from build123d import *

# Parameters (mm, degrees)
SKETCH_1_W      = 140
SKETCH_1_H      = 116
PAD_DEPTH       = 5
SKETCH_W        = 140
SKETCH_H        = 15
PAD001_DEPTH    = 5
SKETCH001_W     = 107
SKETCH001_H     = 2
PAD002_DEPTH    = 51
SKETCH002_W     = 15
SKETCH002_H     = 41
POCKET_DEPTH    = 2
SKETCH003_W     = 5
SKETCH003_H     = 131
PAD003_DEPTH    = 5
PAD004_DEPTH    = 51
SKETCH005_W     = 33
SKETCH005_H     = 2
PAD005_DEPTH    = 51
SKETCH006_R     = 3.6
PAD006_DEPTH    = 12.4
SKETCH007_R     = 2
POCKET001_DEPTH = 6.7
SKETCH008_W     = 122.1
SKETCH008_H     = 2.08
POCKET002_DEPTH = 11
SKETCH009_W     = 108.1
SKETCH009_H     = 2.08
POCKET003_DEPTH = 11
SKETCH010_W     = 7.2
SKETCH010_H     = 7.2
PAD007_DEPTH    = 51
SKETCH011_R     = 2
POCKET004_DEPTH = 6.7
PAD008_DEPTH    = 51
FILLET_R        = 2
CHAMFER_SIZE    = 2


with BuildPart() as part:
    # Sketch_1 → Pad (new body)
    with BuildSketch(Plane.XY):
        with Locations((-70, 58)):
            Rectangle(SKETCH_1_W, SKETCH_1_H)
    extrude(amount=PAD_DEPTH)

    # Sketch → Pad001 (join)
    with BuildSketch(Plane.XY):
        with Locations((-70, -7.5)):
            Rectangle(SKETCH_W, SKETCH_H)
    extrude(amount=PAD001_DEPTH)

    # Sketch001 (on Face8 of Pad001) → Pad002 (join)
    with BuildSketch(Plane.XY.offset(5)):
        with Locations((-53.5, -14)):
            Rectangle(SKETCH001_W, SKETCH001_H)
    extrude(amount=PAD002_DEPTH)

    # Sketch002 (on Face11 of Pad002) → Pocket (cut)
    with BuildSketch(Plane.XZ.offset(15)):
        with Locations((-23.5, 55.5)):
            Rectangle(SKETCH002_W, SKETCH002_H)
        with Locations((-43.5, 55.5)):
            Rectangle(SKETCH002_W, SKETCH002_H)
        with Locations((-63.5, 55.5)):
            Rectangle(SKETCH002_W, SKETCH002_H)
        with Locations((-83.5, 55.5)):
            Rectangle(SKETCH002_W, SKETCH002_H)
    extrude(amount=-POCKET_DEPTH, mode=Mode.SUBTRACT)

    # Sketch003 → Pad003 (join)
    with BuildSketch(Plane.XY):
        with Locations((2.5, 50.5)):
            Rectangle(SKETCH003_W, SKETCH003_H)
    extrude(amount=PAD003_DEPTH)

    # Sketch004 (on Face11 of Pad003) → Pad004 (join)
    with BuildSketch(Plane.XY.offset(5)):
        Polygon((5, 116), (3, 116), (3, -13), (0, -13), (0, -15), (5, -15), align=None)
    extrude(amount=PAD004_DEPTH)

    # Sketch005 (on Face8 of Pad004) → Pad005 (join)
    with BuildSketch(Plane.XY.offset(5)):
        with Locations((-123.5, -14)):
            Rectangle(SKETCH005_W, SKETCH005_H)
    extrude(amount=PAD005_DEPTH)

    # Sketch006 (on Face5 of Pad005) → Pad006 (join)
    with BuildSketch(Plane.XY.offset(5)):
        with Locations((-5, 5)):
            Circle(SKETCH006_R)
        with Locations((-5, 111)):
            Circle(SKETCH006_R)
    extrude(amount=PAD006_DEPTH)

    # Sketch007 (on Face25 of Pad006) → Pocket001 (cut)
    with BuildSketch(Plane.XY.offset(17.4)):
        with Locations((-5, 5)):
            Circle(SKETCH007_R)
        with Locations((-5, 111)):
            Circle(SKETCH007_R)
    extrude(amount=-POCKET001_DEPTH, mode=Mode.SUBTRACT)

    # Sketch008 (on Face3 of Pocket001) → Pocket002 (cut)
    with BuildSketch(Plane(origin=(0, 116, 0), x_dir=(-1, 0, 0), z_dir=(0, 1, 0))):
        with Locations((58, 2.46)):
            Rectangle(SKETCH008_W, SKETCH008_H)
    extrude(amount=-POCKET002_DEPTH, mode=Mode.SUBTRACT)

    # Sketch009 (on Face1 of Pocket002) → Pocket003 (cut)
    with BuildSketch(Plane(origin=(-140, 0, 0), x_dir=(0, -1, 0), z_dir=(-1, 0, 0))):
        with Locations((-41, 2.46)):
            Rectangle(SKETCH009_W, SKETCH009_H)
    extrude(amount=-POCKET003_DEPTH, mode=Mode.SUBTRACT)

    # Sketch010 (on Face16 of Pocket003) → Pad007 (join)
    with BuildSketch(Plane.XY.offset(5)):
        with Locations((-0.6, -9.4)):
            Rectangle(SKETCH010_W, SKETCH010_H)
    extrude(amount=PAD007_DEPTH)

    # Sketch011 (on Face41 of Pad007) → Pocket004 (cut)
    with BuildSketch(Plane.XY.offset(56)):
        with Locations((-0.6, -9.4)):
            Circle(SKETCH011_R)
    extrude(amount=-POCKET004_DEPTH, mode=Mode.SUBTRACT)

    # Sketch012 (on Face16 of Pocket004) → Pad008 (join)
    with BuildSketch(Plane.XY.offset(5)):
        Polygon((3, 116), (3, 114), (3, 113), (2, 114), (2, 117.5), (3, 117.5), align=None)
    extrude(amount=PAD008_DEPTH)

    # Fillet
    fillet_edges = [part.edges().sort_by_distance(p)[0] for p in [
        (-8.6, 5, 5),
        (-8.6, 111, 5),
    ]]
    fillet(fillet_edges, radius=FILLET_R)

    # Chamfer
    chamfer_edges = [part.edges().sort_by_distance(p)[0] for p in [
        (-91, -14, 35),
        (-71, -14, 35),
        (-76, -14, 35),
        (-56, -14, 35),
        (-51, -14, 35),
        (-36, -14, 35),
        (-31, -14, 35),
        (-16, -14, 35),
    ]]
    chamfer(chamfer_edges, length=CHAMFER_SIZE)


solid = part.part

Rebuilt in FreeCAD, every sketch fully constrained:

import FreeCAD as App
import Part
import Sketcher
Q = App.Units.Quantity


def edges_at(feature, points):
    """Names of the edges that pass closest to the given points."""
    edges = feature.Shape.Edges
    near = lambda p: min(range(len(edges)), key=lambda i: edges[i].distToShape(Part.Vertex(*p))[0])
    return sorted({f"Edge{near(p) + 1}" for p in points})


def add_polygon(sketch, points):
    """Adds a closed chain of lines whose ends are joined by coincident constraints."""
    first, n = sketch.GeometryCount, len(points)
    for a, b in zip(points, points[1:] + points[:1]):
        sketch.addGeometry(Part.LineSegment(App.Vector(*a, 0), App.Vector(*b, 0)), False)
    for i in range(n):
        sketch.addConstraint(Sketcher.Constraint("Coincident", first + i, 2, first + (i + 1) % n, 1))

doc = App.newDocument("Part")
body = doc.addObject("PartDesign::Body", "Body")

sketch1 = body.newObject("Sketcher::SketchObject", "Sketch")
sketch1.AttachmentSupport = (doc.getObject("XY_Plane"), [""])
sketch1.MapMode = "FlatFace"
add_polygon(sketch1, [(-140, 116), (-140, 0), (0, 0), (0, 116)])
sketch1.addConstraint([
    Sketcher.Constraint("Vertical", 0),
    Sketcher.Constraint("Horizontal", 1),
    Sketcher.Constraint("Vertical", 2),
    Sketcher.Constraint("Horizontal", 3),
    Sketcher.Constraint("Coincident", 1, 2, -1, 1),
    Sketcher.Constraint("DistanceX", 1, 1, 1, 2, Q("140 mm")),
    Sketcher.Constraint("DistanceY", 0, 2, 0, 1, Q("116 mm")),
])
pad1 = body.newObject("PartDesign::Pad", "Pad")
pad1.Profile = sketch1
pad1.Length = 5

sketch2 = body.newObject("Sketcher::SketchObject", "Sketch001")
sketch2.AttachmentSupport = (doc.getObject("XY_Plane"), [""])
sketch2.MapMode = "FlatFace"
add_polygon(sketch2, [(-140, 0), (-140, -15), (0, -15), (0, 0)])
sketch2.addConstraint([
    Sketcher.Constraint("Vertical", 0),
    Sketcher.Constraint("Horizontal", 1),
    Sketcher.Constraint("Vertical", 2),
    Sketcher.Constraint("Horizontal", 3),
    Sketcher.Constraint("Coincident", 2, 2, -1, 1),
    Sketcher.Constraint("DistanceX", 1, 1, 1, 2, Q("140 mm")),
    Sketcher.Constraint("DistanceY", 0, 2, 0, 1, Q("15 mm")),
])
pad2 = body.newObject("PartDesign::Pad", "Pad001")
pad2.Profile = sketch2
pad2.Length = 5

sketch3 = body.newObject("Sketcher::SketchObject", "Sketch002")
sketch3.AttachmentSupport = (doc.getObject("XY_Plane"), [""])
sketch3.MapMode = "FlatFace"
sketch3.AttachmentOffset = App.Placement(App.Vector(0, 0, 5), App.Rotation())
add_polygon(sketch3, [(-107, -13), (-107, -15), (0, -15), (0, -13)])
sketch3.addConstraint([
    Sketcher.Constraint("Vertical", 0),
    Sketcher.Constraint("Horizontal", 1),
    Sketcher.Constraint("Vertical", 2),
    Sketcher.Constraint("Horizontal", 3),
    Sketcher.Constraint("PointOnObject", 1, 2, -2),
    Sketcher.Constraint("DistanceX", 1, 1, 1, 2, Q("107 mm")),
    Sketcher.Constraint("DistanceY", 0, 2, 0, 1, Q("2 mm")),
    Sketcher.Constraint("DistanceY", 0, 2, -1, 1, Q("15 mm")),
])
pad3 = body.newObject("PartDesign::Pad", "Pad002")
pad3.Profile = sketch3
pad3.Length = 51

sketch4 = body.newObject("Sketcher::SketchObject", "Sketch003")
sketch4.AttachmentSupport = (doc.getObject("XZ_Plane"), [""])
sketch4.MapMode = "FlatFace"
sketch4.AttachmentOffset = App.Placement(App.Vector(0, 0, 15), App.Rotation())
add_polygon(sketch4, [(-31, 76), (-31, 35), (-16, 35), (-16, 76)])
add_polygon(sketch4, [(-51, 76), (-51, 35), (-36, 35), (-36, 76)])
add_polygon(sketch4, [(-71, 76), (-71, 35), (-56, 35), (-56, 76)])
add_polygon(sketch4, [(-91, 76), (-91, 35), (-76, 35), (-76, 76)])
sketch4.addConstraint([
    Sketcher.Constraint("Vertical", 0),
    Sketcher.Constraint("Horizontal", 1),
    Sketcher.Constraint("Vertical", 2),
    Sketcher.Constraint("Horizontal", 3),
    Sketcher.Constraint("Vertical", 4),
    Sketcher.Constraint("Horizontal", 5),
    Sketcher.Constraint("Vertical", 6),
    Sketcher.Constraint("Horizontal", 7),
    Sketcher.Constraint("Vertical", 8),
    Sketcher.Constraint("Horizontal", 9),
    Sketcher.Constraint("Vertical", 10),
    Sketcher.Constraint("Horizontal", 11),
    Sketcher.Constraint("Vertical", 12),
    Sketcher.Constraint("Horizontal", 13),
    Sketcher.Constraint("Vertical", 14),
    Sketcher.Constraint("Horizontal", 15),
    Sketcher.Constraint("Horizontal", 1, 2, 4, 2),
    Sketcher.Constraint("Horizontal", 3, 2, 6, 2),
    Sketcher.Constraint("Horizontal", 5, 2, 8, 2),
    Sketcher.Constraint("Horizontal", 7, 2, 10, 2),
    Sketcher.Constraint("Horizontal", 9, 2, 12, 2),
    Sketcher.Constraint("Horizontal", 11, 2, 14, 2),
    Sketcher.Constraint("Equal", 3, 5),
    Sketcher.Constraint("Equal", 7, 9),
    Sketcher.Constraint("Equal", 11, 13),
    Sketcher.Constraint("DistanceX", 1, 1, 1, 2, Q("15 mm")),
    Sketcher.Constraint("DistanceY", 0, 2, 0, 1, Q("41 mm")),
    Sketcher.Constraint("DistanceX", 0, 2, -1, 1, Q("31 mm")),
    Sketcher.Constraint("DistanceY", -1, 1, 0, 2, Q("35 mm")),
    Sketcher.Constraint("DistanceX", 4, 2, -1, 1, Q("51 mm")),
    Sketcher.Constraint("DistanceX", 8, 2, -1, 1, Q("71 mm")),
    Sketcher.Constraint("DistanceX", 12, 2, -1, 1, Q("91 mm")),
])
pocket1 = body.newObject("PartDesign::Pocket", "Pocket")
pocket1.Profile = sketch4
pocket1.Length = 2

sketch5 = body.newObject("Sketcher::SketchObject", "Sketch004")
sketch5.AttachmentSupport = (doc.getObject("XY_Plane"), [""])
sketch5.MapMode = "FlatFace"
add_polygon(sketch5, [(0, 116), (0, -15), (5, -15), (5, 116)])
sketch5.addConstraint([
    Sketcher.Constraint("Vertical", 0),
    Sketcher.Constraint("Horizontal", 1),
    Sketcher.Constraint("Vertical", 2),
    Sketcher.Constraint("Horizontal", 3),
    Sketcher.Constraint("PointOnObject", 0, 2, -2),
    Sketcher.Constraint("DistanceX", 1, 1, 1, 2, Q("5 mm")),
    Sketcher.Constraint("DistanceY", 0, 2, 0, 1, Q("131 mm")),
    Sketcher.Constraint("DistanceY", 0, 2, -1, 1, Q("15 mm")),
])
pad4 = body.newObject("PartDesign::Pad", "Pad003")
pad4.Profile = sketch5
pad4.Length = 5

sketch6 = body.newObject("Sketcher::SketchObject", "Sketch005")
sketch6.AttachmentSupport = (doc.getObject("XY_Plane"), [""])
sketch6.MapMode = "FlatFace"
sketch6.AttachmentOffset = App.Placement(App.Vector(0, 0, 5), App.Rotation())
add_polygon(sketch6, [(5, 116), (3, 116), (3, -13), (0, -13), (0, -15), (5, -15)])
sketch6.addConstraint([
    Sketcher.Constraint("Horizontal", 0),
    Sketcher.Constraint("Vertical", 1),
    Sketcher.Constraint("Horizontal", 2),
    Sketcher.Constraint("Vertical", 3),
    Sketcher.Constraint("Horizontal", 4),
    Sketcher.Constraint("Vertical", 5),
    Sketcher.Constraint("PointOnObject", 2, 2, -2),
    Sketcher.Constraint("Equal", 0, 3),
    Sketcher.Constraint("DistanceX", 0, 2, 0, 1, Q("2 mm")),
    Sketcher.Constraint("DistanceX", 2, 2, 2, 1, Q("3 mm")),
    Sketcher.Constraint("DistanceY", 1, 2, 1, 1, Q("129 mm")),
    Sketcher.Constraint("DistanceY", -1, 1, 0, 2, Q("116 mm")),
])
pad5 = body.newObject("PartDesign::Pad", "Pad004")
pad5.Profile = sketch6
pad5.Length = 51

sketch7 = body.newObject("Sketcher::SketchObject", "Sketch006")
sketch7.AttachmentSupport = (doc.getObject("XY_Plane"), [""])
sketch7.MapMode = "FlatFace"
sketch7.AttachmentOffset = App.Placement(App.Vector(0, 0, 5), App.Rotation())
add_polygon(sketch7, [(-140, -13), (-140, -15), (-107, -15), (-107, -13)])
sketch7.addConstraint([
    Sketcher.Constraint("Vertical", 0),
    Sketcher.Constraint("Horizontal", 1),
    Sketcher.Constraint("Vertical", 2),
    Sketcher.Constraint("Horizontal", 3),
    Sketcher.Constraint("DistanceX", 1, 1, 1, 2, Q("33 mm")),
    Sketcher.Constraint("DistanceY", 0, 2, 0, 1, Q("2 mm")),
    Sketcher.Constraint("DistanceX", 0, 2, -1, 1, Q("140 mm")),
    Sketcher.Constraint("DistanceY", 0, 2, -1, 1, Q("15 mm")),
])
pad6 = body.newObject("PartDesign::Pad", "Pad005")
pad6.Profile = sketch7
pad6.Length = 51

sketch8 = body.newObject("Sketcher::SketchObject", "Sketch007")
sketch8.AttachmentSupport = (doc.getObject("XY_Plane"), [""])
sketch8.MapMode = "FlatFace"
sketch8.AttachmentOffset = App.Placement(App.Vector(0, 0, 5), App.Rotation())
sketch8.addGeometry([
    Part.Circle(App.Vector(-5, 5, 0), App.Vector(0, 0, 1), 3.6),
    Part.Circle(App.Vector(-5, 111, 0), App.Vector(0, 0, 1), 3.6),
], False)
sketch8.addConstraint([
    Sketcher.Constraint("Equal", 0, 1),
    Sketcher.Constraint("Vertical", 0, 3, 1, 3),
    Sketcher.Constraint("Diameter", 0, Q("7.2 mm")),
    Sketcher.Constraint("DistanceX", 0, 3, -1, 1, Q("5 mm")),
    Sketcher.Constraint("DistanceY", -1, 1, 0, 3, Q("5 mm")),
    Sketcher.Constraint("DistanceY", -1, 1, 1, 3, Q("111 mm")),
])
pad7 = body.newObject("PartDesign::Pad", "Pad006")
pad7.Profile = sketch8
pad7.Length = 12.4

sketch9 = body.newObject("Sketcher::SketchObject", "Sketch008")
sketch9.AttachmentSupport = (doc.getObject("XY_Plane"), [""])
sketch9.MapMode = "FlatFace"
sketch9.AttachmentOffset = App.Placement(App.Vector(0, 0, 17.4), App.Rotation())
sketch9.addGeometry([
    Part.Circle(App.Vector(-5, 5, 0), App.Vector(0, 0, 1), 2),
    Part.Circle(App.Vector(-5, 111, 0), App.Vector(0, 0, 1), 2),
], False)
sketch9.addConstraint([
    Sketcher.Constraint("Equal", 0, 1),
    Sketcher.Constraint("Vertical", 0, 3, 1, 3),
    Sketcher.Constraint("Diameter", 0, Q("4 mm")),
    Sketcher.Constraint("DistanceX", 0, 3, -1, 1, Q("5 mm")),
    Sketcher.Constraint("DistanceY", -1, 1, 0, 3, Q("5 mm")),
    Sketcher.Constraint("DistanceY", -1, 1, 1, 3, Q("111 mm")),
])
pocket2 = body.newObject("PartDesign::Pocket", "Pocket001")
pocket2.Profile = sketch9
pocket2.Length = 6.7

sketch10 = body.newObject("Sketcher::SketchObject", "Sketch009")
sketch10.AttachmentSupport = (doc.getObject("XZ_Plane"), [""])
sketch10.MapMode = "FlatFace"
sketch10.AttachmentOffset = App.Placement(App.Vector(0, 0, -116), App.Rotation())
add_polygon(sketch10, [(3, 3.5), (3, 1.4), (-119, 1.4), (-119, 3.5)])
sketch10.addConstraint([
    Sketcher.Constraint("Vertical", 0),
    Sketcher.Constraint("Horizontal", 1),
    Sketcher.Constraint("Vertical", 2),
    Sketcher.Constraint("Horizontal", 3),
    Sketcher.Constraint("DistanceX", 1, 2, 1, 1, Q("122.1 mm")),
    Sketcher.Constraint("DistanceY", 0, 2, 0, 1, Q("2.08 mm")),
    Sketcher.Constraint("DistanceY", -1, 1, 2, 2, Q("3.5 mm")),
    Sketcher.Constraint("DistanceX", -1, 1, 0, 2, Q("3.05 mm")),
])
pocket3 = body.newObject("PartDesign::Pocket", "Pocket002")
pocket3.Profile = sketch10
pocket3.Length = 11
pocket3.Reversed = True

sketch11 = body.newObject("Sketcher::SketchObject", "Sketch010")
sketch11.AttachmentSupport = (doc.getObject("YZ_Plane"), [""])
sketch11.MapMode = "FlatFace"
sketch11.AttachmentOffset = App.Placement(App.Vector(0, 0, -140), App.Rotation())
add_polygon(sketch11, [(95, 3.5), (95, 1.4), (-13.1, 1.4), (-13.1, 3.5)])
sketch11.addConstraint([
    Sketcher.Constraint("Vertical", 0),
    Sketcher.Constraint("Horizontal", 1),
    Sketcher.Constraint("Vertical", 2),
    Sketcher.Constraint("Horizontal", 3),
    Sketcher.Constraint("DistanceX", 1, 2, 1, 1, Q("108.1 mm")),
    Sketcher.Constraint("DistanceY", 0, 2, 0, 1, Q("2.08 mm")),
    Sketcher.Constraint("DistanceY", -1, 1, 2, 2, Q("3.5 mm")),
    Sketcher.Constraint("DistanceX", -1, 1, 0, 2, Q("95.05 mm")),
])
pocket4 = body.newObject("PartDesign::Pocket", "Pocket003")
pocket4.Profile = sketch11
pocket4.Length = 11
pocket4.Reversed = True

sketch12 = body.newObject("Sketcher::SketchObject", "Sketch011")
sketch12.AttachmentSupport = (doc.getObject("XY_Plane"), [""])
sketch12.MapMode = "FlatFace"
sketch12.AttachmentOffset = App.Placement(App.Vector(0, 0, 5), App.Rotation())
add_polygon(sketch12, [(-4, -6), (-4, -13), (3, -13), (3, -6)])
sketch12.addConstraint([
    Sketcher.Constraint("Vertical", 0),
    Sketcher.Constraint("Horizontal", 1),
    Sketcher.Constraint("Vertical", 2),
    Sketcher.Constraint("Horizontal", 3),
    Sketcher.Constraint("Equal", 3, 0),
    Sketcher.Constraint("DistanceX", 1, 1, 1, 2, Q("7.2 mm")),
    Sketcher.Constraint("DistanceY", 0, 2, -1, 1, Q("13 mm")),
    Sketcher.Constraint("DistanceX", -1, 1, 1, 2, Q("3 mm")),
])
pad8 = body.newObject("PartDesign::Pad", "Pad007")
pad8.Profile = sketch12
pad8.Length = 51

sketch13 = body.newObject("Sketcher::SketchObject", "Sketch012")
sketch13.AttachmentSupport = (doc.getObject("XY_Plane"), [""])
sketch13.MapMode = "FlatFace"
sketch13.AttachmentOffset = App.Placement(App.Vector(0, 0, 56), App.Rotation())
sketch13.addGeometry(Part.Circle(App.Vector(-0.6, -9.4, 0), App.Vector(0, 0, 1), 2), False)
sketch13.addConstraint([
    Sketcher.Constraint("Diameter", 0, Q("4 mm")),
    Sketcher.Constraint("DistanceX", 0, 3, -1, 1, Q("0.6 mm")),
    Sketcher.Constraint("DistanceY", 0, 3, -1, 1, Q("9.4 mm")),
])
pocket5 = body.newObject("PartDesign::Pocket", "Pocket004")
pocket5.Profile = sketch13
pocket5.Length = 6.7

sketch14 = body.newObject("Sketcher::SketchObject", "Sketch013")
sketch14.AttachmentSupport = (doc.getObject("XY_Plane"), [""])
sketch14.MapMode = "FlatFace"
sketch14.AttachmentOffset = App.Placement(App.Vector(0, 0, 5), App.Rotation())
add_polygon(sketch14, [(3, 113), (3, 117.5), (2, 117.5), (2, 114)])
sketch14.addConstraint([
    Sketcher.Constraint("Vertical", 0),
    Sketcher.Constraint("Horizontal", 1),
    Sketcher.Constraint("Vertical", 2),
    Sketcher.Constraint("DistanceX", 1, 2, 1, 1, Q("1 mm")),
    Sketcher.Constraint("Angle", 3, Q("-45 deg")),
    Sketcher.Constraint("DistanceY", 0, 1, 0, 2, Q("4.5 mm")),
    Sketcher.Constraint("DistanceX", -1, 1, 0, 2, Q("3 mm")),
    Sketcher.Constraint("DistanceY", -1, 1, 2, 2, Q("114 mm")),
])
pad9 = body.newObject("PartDesign::Pad", "Pad008")
pad9.Profile = sketch14
pad9.Length = 51
doc.recompute()

fillet = body.newObject("PartDesign::Fillet", "Fillet")
fillet.Base = (pad9, edges_at(pad9, [(-8.6, 5, 5), (-8.6, 111, 5)]))
fillet.Radius = 2
doc.recompute()

chamfer = body.newObject("PartDesign::Chamfer", "Chamfer")
chamfer.Base = (fillet, edges_at(fillet, [
    (-91, -14, 35),
    (-71, -14, 35),
    (-76, -14, 35),
    (-56, -14, 35),
    (-51, -14, 35),
    (-36, -14, 35),
    (-31, -14, 35),
    (-16, -14, 35),
]))
chamfer.Size = 2

doc.recompute()
